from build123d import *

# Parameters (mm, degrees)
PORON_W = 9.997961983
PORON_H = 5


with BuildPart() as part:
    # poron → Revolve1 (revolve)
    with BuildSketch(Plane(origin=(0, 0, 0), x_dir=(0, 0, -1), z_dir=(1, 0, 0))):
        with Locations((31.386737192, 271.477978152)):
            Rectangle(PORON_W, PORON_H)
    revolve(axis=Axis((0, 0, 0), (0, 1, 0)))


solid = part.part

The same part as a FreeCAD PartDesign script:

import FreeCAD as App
import Part
import Sketcher

doc = App.newDocument("Part")
params = doc.addObject("Spreadsheet::Sheet", "Params")
for row, (alias, value) in enumerate([
    ("sketch1_width", "5 mm"),
    ("revolution_angle", "360 deg"),
], start=1):
    params.set(f"A{row}", alias)
    params.set(f"B{row}", "=" + value)
    params.setAlias(f"B{row}", alias)

body = doc.addObject("PartDesign::Body", "Body")

sketch1 = body.newObject("Sketcher::SketchObject", "Sketch")
sketch1.AttachmentSupport = (doc.getObject("YZ_Plane"), [""])
sketch1.MapMode = "FlatFace"
sketch1.addGeometry(Part.LineSegment(App.Vector(274, -26, 0), App.Vector(269, -26, 0)), False)
sketch1.addGeometry(Part.LineSegment(App.Vector(269, -26, 0), App.Vector(269, -36, 0)), False)
sketch1.addGeometry(Part.LineSegment(App.Vector(269, -36, 0), App.Vector(274, -36, 0)), False)
sketch1.addGeometry(Part.LineSegment(App.Vector(274, -36, 0), App.Vector(274, -26, 0)), False)
sketch1.addConstraint(Sketcher.Constraint("Coincident", 0, 2, 1, 1))
sketch1.addConstraint(Sketcher.Constraint("Coincident", 1, 2, 2, 1))
sketch1.addConstraint(Sketcher.Constraint("Coincident", 2, 2, 3, 1))
sketch1.addConstraint(Sketcher.Constraint("Coincident", 3, 2, 0, 1))
sketch1.addConstraint(Sketcher.Constraint("Horizontal", 0))
sketch1.addConstraint(Sketcher.Constraint("Vertical", 1))
sketch1.addConstraint(Sketcher.Constraint("Horizontal", 2))
sketch1.addConstraint(Sketcher.Constraint("Vertical", 3))
sketch1.addConstraint(Sketcher.Constraint("DistanceX", 0, 2, 0, 1, 5.0))
sketch1.addConstraint(Sketcher.Constraint("DistanceY", 1, 2, 1, 1, 9.997962))
sketch1.addConstraint(Sketcher.Constraint("DistanceX", -1, 1, 0, 2, 268.977978))
sketch1.addConstraint(Sketcher.Constraint("DistanceY", 1, 2, -1, 1, 36.385718))
sketch1.setExpression("Constraints[8]", "Params.sketch1_width")
revolution = body.newObject("PartDesign::Revolution", "Revolution")
revolution.Profile = sketch1
revolution.ReferenceAxis = (sketch1, ["H_Axis"])
revolution.setExpression("Angle", "Params.revolution_angle")

doc.recompute()
